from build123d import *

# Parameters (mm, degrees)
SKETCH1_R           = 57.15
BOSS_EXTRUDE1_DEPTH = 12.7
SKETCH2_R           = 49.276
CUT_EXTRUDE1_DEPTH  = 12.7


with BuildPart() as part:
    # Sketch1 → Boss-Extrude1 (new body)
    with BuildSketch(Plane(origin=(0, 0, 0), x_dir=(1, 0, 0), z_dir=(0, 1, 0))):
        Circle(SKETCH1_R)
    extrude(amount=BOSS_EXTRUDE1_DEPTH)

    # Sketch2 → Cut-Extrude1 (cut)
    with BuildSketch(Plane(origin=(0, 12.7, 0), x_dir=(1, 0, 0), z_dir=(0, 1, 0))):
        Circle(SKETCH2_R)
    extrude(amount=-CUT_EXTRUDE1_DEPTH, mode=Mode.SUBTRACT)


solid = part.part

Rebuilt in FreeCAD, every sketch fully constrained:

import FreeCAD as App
import Part
import Sketcher
from FreeCAD import Vector
Q = App.Units.Quantity

doc = App.newDocument("Part")
body = doc.addObject("PartDesign::Body", "Body")

# Sketch on XZ plane
sketch1 = body.newObject("Sketcher::SketchObject", "Sketch")
sketch1.AttachmentSupport = (doc.getObject("XZ_Plane"), [""])
sketch1.MapMode = "FlatFace"
sketch1.addGeometry(Part.Circle(Vector(0, 0, 0), Vector(0, 0, 1), 57), False)
sketch1.addConstraint([
    Sketcher.Constraint("Coincident", 0, 3, -1, 1),
    Sketcher.Constraint("Diameter", 0, Q("4.5 in")),
])
pad1 = body.newObject("PartDesign::Pad", "Pad")
pad1.Profile = sketch1
pad1.Length = Q("0.5 in")
pad1.Reversed = True

# Sketch on XZ plane
sketch2 = body.newObject("Sketcher::SketchObject", "Sketch001")
sketch2.AttachmentSupport = (doc.getObject("XZ_Plane"), [""])
sketch2.MapMode = "FlatFace"
sketch2.AttachmentOffset = App.Placement(Vector(0, 0, -0.5 * 25.4), App.Rotation())
sketch2.addGeometry(Part.Circle(Vector(0, 0, 0), Vector(0, 0, 1), 49), False)
sketch2.addConstraint([
    Sketcher.Constraint("Coincident", 0, 3, -1, 1),
    Sketcher.Constraint("Diameter", 0, Q("3.88 in")),
])
pocket1 = body.newObject("PartDesign::Pocket", "Pocket")
pocket1.Profile = sketch2
pocket1.Length = Q("0.5 in")
pocket1.Reversed = True

doc.recompute()
